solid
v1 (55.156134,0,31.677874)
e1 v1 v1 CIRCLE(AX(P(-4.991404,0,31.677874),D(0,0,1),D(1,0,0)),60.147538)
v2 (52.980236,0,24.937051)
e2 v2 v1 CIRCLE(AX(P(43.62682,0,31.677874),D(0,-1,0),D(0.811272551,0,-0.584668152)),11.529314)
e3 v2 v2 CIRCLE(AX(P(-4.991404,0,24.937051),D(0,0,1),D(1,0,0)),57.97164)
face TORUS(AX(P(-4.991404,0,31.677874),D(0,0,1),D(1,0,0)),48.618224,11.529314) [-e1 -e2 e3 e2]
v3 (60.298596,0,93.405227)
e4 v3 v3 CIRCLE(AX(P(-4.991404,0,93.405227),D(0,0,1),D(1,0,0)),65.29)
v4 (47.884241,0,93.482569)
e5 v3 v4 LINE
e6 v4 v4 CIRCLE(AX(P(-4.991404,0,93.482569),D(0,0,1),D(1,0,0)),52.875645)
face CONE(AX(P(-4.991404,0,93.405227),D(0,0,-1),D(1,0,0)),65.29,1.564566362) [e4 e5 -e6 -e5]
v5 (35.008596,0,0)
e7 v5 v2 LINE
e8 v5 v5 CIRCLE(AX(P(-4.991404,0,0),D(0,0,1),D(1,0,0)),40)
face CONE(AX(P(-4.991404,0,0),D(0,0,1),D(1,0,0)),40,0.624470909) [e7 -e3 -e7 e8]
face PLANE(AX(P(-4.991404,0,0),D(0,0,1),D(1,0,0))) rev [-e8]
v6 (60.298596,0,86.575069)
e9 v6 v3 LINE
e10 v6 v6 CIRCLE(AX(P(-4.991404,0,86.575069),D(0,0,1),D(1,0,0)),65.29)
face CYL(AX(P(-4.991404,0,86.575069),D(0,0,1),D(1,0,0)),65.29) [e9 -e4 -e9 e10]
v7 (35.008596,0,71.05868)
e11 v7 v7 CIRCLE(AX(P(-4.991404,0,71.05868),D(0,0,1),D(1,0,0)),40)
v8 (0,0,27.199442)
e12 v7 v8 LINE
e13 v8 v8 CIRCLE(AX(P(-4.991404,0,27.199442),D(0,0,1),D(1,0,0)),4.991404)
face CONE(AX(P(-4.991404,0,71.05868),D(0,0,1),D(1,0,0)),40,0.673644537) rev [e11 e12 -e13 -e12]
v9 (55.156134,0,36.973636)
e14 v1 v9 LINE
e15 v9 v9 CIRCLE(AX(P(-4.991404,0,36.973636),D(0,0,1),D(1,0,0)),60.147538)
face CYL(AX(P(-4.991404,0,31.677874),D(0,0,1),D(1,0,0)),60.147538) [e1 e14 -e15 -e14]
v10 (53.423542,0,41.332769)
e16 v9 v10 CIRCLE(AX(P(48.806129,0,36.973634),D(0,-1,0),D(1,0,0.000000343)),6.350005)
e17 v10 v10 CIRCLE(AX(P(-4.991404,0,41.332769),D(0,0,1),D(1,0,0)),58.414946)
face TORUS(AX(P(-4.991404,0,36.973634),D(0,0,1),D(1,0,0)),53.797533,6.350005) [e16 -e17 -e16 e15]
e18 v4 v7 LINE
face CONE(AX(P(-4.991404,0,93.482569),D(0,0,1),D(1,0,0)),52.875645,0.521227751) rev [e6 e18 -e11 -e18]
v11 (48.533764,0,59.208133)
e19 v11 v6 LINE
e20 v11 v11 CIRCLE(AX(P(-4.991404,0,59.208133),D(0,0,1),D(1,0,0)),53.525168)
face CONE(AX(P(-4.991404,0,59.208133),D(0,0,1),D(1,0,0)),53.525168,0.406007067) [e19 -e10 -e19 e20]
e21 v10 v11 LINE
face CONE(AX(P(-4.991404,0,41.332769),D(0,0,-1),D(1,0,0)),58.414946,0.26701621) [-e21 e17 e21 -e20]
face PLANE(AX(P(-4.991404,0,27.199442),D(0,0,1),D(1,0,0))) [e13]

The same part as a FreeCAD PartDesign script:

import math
import FreeCAD as App
import Part
import Sketcher
from FreeCAD import Vector

doc = App.newDocument("Part")
params = doc.addObject("Spreadsheet::Sheet", "Params")
for row, (alias, value) in enumerate([
    ("sketch1_width", "40 mm"),
    ("revolution_angle", "360 deg"),
], start=1):
    params.set(f"A{row}", alias)
    params.set(f"B{row}", "=" + value)
    params.setAlias(f"B{row}", alias)

body = doc.addObject("PartDesign::Body", "Body")

# Sketch on XZ plane
sketch1 = body.newObject("Sketcher::SketchObject", "Sketch")
sketch1.AttachmentSupport = (doc.getObject("XZ_Plane"), [""])
sketch1.MapMode = "FlatFace"
sketch1.addGeometry(Part.LineSegment(Vector(-5, 27.2, 0), Vector(-5, 0, 0)), False)
sketch1.addGeometry(Part.LineSegment(Vector(-5, 0, 0), Vector(35, 0, 0)), False)
sketch1.addGeometry(Part.LineSegment(Vector(35, 0, 0), Vector(53, 24.9, 0)), False)
sketch1.addGeometry(Part.ArcOfCircle(Part.Circle(Vector(43.6, 31.7, 0), Vector(0, 0, 1), 11.5), math.radians(-36), math.radians(0)), False)
sketch1.addGeometry(Part.LineSegment(Vector(55.2, 31.7, 0), Vector(55.2, 37, 0)), False)
sketch1.addGeometry(Part.ArcOfCircle(Part.Circle(Vector(48.8, 37, 0), Vector(0, 0, 1), 6.4), math.radians(0), math.radians(43)), False)
sketch1.addGeometry(Part.LineSegment(Vector(53.4, 41.3, 0), Vector(48.5, 59.2, 0)), False)
sketch1.addGeometry(Part.LineSegment(Vector(48.5, 59.2, 0), Vector(60.3, 86.6, 0)), False)
sketch1.addGeometry(Part.LineSegment(Vector(60.3, 86.6, 0), Vector(60.3, 93.4, 0)), False)
sketch1.addGeometry(Part.LineSegment(Vector(60.3, 93.4, 0), Vector(47.9, 93.5, 0)), False)
sketch1.addGeometry(Part.LineSegment(Vector(47.9, 93.5, 0), Vector(35, 71.1, 0)), False)
sketch1.addGeometry(Part.LineSegment(Vector(35, 71.1, 0), Vector(0, 27.2, 0)), False)
sketch1.addGeometry(Part.LineSegment(Vector(0, 27.2, 0), Vector(-5, 27.2, 0)), False)
sketch1.addGeometry(Part.LineSegment(Vector(-5, 0, 0), Vector(-5, 93.5, 0)), True)  # axis
sketch1.addConstraint(Sketcher.Constraint("Coincident", 0, 2, 1, 1))
sketch1.addConstraint(Sketcher.Constraint("Coincident", 1, 2, 2, 1))
sketch1.addConstraint(Sketcher.Constraint("Tangent", 2, 2, 3, 1))
sketch1.addConstraint(Sketcher.Constraint("Tangent", 3, 2, 4, 1))
sketch1.addConstraint(Sketcher.Constraint("Tangent", 4, 2, 5, 1))
sketch1.addConstraint(Sketcher.Constraint("Coincident", 5, 2, 6, 1))
sketch1.addConstraint(Sketcher.Constraint("Coincident", 6, 2, 7, 1))
sketch1.addConstraint(Sketcher.Constraint("Coincident", 7, 2, 8, 1))
sketch1.addConstraint(Sketcher.Constraint("Coincident", 8, 2, 9, 1))
sketch1.addConstraint(Sketcher.Constraint("Coincident", 9, 2, 10, 1))
sketch1.addConstraint(Sketcher.Constraint("Coincident", 10, 2, 11, 1))
sketch1.addConstraint(Sketcher.Constraint("Coincident", 11, 2, 12, 1))
sketch1.addConstraint(Sketcher.Constraint("Coincident", 12, 2, 0, 1))
sketch1.addConstraint(Sketcher.Constraint("Vertical", 0))
sketch1.addConstraint(Sketcher.Constraint("Horizontal", 1))
sketch1.addConstraint(Sketcher.Constraint("Vertical", 4))
sketch1.addConstraint(Sketcher.Constraint("Vertical", 8))
sketch1.addConstraint(Sketcher.Constraint("Horizontal", 12))
sketch1.addConstraint(Sketcher.Constraint("Vertical", 13))
sketch1.addConstraint(Sketcher.Constraint("Coincident", 13, 1, 0, 2))
sketch1.addConstraint(Sketcher.Constraint("PointOnObject", 0, 2, -1))
sketch1.addConstraint(Sketcher.Constraint("PointOnObject", 11, 2, -2))
sketch1.addConstraint(Sketcher.Constraint("Horizontal", 9, 2, 13, 2))
sketch1.addConstraint(Sketcher.Constraint("Vertical", 1, 2, 10, 2))
sketch1.addConstraint(Sketcher.Constraint("DistanceX", 1, 1, 1, 2, 40.0))
sketch1.addConstraint(Sketcher.Constraint("DistanceX", 10, 2, 7, 2, 25.29))
sketch1.addConstraint(Sketcher.Constraint("Radius", 3, 11.529314))
sketch1.addConstraint(Sketcher.Constraint("Radius", 5, 6.350005))
sketch1.addConstraint(Sketcher.Constraint("DistanceY", 13, 1, 13, 2, 93.482569))
sketch1.addConstraint(Sketcher.Constraint("DistanceX", 2, 2, 4, 2, 2.175898))
sketch1.addConstraint(Sketcher.Constraint("DistanceY", 5, 3, 6, 2, 22.234499))
sketch1.addConstraint(Sketcher.Constraint("DistanceY", 5, 2, 7, 2, 45.2423))
sketch1.addConstraint(Sketcher.Constraint("DistanceY", 7, 2, 9, 2, 6.9075))
sketch1.addConstraint(Sketcher.Constraint("DistanceX", 9, 2, 5, 2, 5.539301))
sketch1.addConstraint(Sketcher.Constraint("Distance", 2, 30.738191))
sketch1.addConstraint(Sketcher.Constraint("Distance", 11, 56.118041))
sketch1.addConstraint(Sketcher.Constraint("DistanceX", 12, 2, 12, 1, 4.991404))
sketch1.addConstraint(Sketcher.Constraint("DistanceY", 0, 2, 0, 1, 27.199442))
sketch1.addConstraint(Sketcher.Constraint("DistanceY", 4, 1, 4, 2, 5.295762))
sketch1.addConstraint(Sketcher.Constraint("DistanceY", 8, 1, 8, 2, 6.830158))
sketch1.addConstraint(Sketcher.Constraint("DistanceX", 6, 2, 5, 2, 4.889778))
sketch1.setExpression("Constraints[24]", "Params.sketch1_width")
revolution = body.newObject("PartDesign::Revolution", "Revolution")
revolution.Profile = sketch1
revolution.ReferenceAxis = (sketch1, ["Axis0"])
revolution.setExpression("Angle", "Params.revolution_angle")

doc.recompute()
